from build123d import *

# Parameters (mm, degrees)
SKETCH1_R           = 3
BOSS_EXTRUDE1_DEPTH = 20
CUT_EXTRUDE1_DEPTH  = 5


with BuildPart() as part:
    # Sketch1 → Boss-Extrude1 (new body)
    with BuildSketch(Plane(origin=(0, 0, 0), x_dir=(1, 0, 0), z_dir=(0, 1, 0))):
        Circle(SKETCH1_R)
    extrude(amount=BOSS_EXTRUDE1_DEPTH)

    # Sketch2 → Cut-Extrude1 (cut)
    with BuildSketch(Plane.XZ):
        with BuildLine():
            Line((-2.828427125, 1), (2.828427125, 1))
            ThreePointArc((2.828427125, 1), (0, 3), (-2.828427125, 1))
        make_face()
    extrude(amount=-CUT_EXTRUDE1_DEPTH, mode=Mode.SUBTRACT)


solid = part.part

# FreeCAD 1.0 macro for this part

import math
import FreeCAD as App
import Part
import Sketcher
from FreeCAD import Vector
Q = App.Units.Quantity

doc = App.newDocument("Part")
body = doc.addObject("PartDesign::Body", "Body")

# Sketch on XZ plane
sketch1 = doc.addObject("Sketcher::SketchObject", "Sketch")
body.addObject(sketch1)
sketch1.AttachmentSupport = (doc.XZ_Plane, [""])
sketch1.MapMode = "FlatFace"
sketch1.addGeometry(Part.Circle(Vector(0, 0, 0), Vector(0, 0, 1), 3), False)
sketch1.addConstraint([
    Sketcher.Constraint("Coincident", 0, 3, -1, 1),
    Sketcher.Constraint("Diameter", 0, Q("6 mm")),
])
pad1 = doc.addObject("PartDesign::Pad", "Pad")
body.addObject(pad1)
pad1.Profile = sketch1
pad1.Length = 20
pad1.Reversed = True

# Sketch on XZ plane
sketch2 = doc.addObject("Sketcher::SketchObject", "Sketch001")
body.addObject(sketch2)
sketch2.AttachmentSupport = (doc.XZ_Plane, [""])
sketch2.MapMode = "FlatFace"
sketch2.addGeometry([
    Part.LineSegment(Vector(-2.828427, 1, 0), Vector(2.828427, 1, 0)),
    Part.ArcOfCircle(Part.Circle(Vector(0, 0, 0), Vector(0, 0, 1), 3), math.radians(19.471221), math.radians(160.528779)),
], False)
sketch2.addConstraint([
    Sketcher.Constraint("Coincident", 0, 1, 1, 2),
    Sketcher.Constraint("Coincident", 1, 1, 0, 2),
    Sketcher.Constraint("Horizontal", 0),
    Sketcher.Constraint("Coincident", 1, 3, -1, 1),
    Sketcher.Constraint("Radius", 1, Q("3 mm")),
    Sketcher.Constraint("DistanceY", -1, 1, 0, 1, Q("1 mm")),
])
pocket1 = doc.addObject("PartDesign::Pocket", "Pocket")
body.addObject(pocket1)
pocket1.Profile = sketch2
pocket1.Length = 5

doc.recompute()
